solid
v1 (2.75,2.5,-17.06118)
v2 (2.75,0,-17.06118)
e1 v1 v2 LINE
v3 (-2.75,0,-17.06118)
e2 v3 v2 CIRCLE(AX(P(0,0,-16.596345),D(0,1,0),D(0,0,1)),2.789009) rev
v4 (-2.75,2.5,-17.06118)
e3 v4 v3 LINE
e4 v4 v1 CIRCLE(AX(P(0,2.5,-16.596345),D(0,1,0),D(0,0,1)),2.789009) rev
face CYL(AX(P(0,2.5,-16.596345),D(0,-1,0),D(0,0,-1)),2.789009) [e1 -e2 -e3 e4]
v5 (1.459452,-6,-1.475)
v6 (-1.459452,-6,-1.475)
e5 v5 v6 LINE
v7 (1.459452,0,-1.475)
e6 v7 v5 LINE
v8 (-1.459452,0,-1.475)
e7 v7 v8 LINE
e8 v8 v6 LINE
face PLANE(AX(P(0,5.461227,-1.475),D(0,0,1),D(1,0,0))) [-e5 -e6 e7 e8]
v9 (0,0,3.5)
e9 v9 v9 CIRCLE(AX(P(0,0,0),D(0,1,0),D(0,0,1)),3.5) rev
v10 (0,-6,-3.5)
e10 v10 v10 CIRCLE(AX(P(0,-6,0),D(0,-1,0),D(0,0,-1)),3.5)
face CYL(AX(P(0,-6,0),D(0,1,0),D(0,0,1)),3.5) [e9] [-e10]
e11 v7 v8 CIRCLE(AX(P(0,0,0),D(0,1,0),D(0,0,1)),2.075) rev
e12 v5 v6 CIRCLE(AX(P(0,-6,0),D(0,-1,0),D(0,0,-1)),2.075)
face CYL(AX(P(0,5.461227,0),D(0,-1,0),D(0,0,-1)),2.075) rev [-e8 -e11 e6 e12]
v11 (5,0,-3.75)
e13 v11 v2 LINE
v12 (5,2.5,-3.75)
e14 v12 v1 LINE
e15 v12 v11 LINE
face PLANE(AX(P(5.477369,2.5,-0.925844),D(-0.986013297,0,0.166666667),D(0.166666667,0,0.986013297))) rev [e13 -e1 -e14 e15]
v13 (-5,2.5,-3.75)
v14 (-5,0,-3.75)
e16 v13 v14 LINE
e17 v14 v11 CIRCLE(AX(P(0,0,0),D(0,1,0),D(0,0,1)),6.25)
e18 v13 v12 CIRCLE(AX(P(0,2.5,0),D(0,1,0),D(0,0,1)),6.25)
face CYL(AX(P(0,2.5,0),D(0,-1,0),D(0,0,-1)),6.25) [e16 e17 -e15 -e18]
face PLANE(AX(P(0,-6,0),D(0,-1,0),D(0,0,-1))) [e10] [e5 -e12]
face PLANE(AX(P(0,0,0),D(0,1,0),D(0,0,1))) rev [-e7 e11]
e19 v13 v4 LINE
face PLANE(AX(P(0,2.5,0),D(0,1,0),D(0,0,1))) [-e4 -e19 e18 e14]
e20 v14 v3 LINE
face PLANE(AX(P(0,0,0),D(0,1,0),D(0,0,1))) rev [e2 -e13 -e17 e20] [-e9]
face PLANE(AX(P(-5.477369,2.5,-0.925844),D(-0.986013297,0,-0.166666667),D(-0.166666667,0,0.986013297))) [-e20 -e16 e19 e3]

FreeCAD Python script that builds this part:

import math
import FreeCAD as App
import Part
import Sketcher

V = App.Vector

doc = App.newDocument("Part")
params = doc.addObject("Spreadsheet::Sheet", "Params")
for row, (alias, value) in enumerate([
    ("sketch1_radius", "6.25 mm"),
    ("sketch1_length", "13.5 mm"),
    ("pad1_length", "2.5 mm"),
    ("sketch2_diameter", "7 mm"),
    ("pad2_length", "6 mm"),
    ("pocket1_length", "6 mm"),
], start=1):
    params.set(f"A{row}", alias)
    params.set(f"B{row}", "=" + value)
    params.setAlias(f"B{row}", alias)

body = doc.addObject("PartDesign::Body", "Body")

sketch1 = body.newObject("Sketcher::SketchObject", "Sketch")
sketch1.AttachmentSupport = (doc.getObject("XZ_Plane"), [""])
sketch1.MapMode = "FlatFace"
sketch1.addGeometry([
    Part.LineSegment(V(5, -3.75, 0), V(2.75, -17.06118, 0)),
    Part.ArcOfCircle(Part.Circle(V(0, -16.596345, 0), V(0, 0, 1), 2.789009), math.radians(-170.405932), math.radians(-9.594068)),
    Part.LineSegment(V(-2.75, -17.06118, 0), V(-5, -3.75, 0)),
    Part.ArcOfCircle(Part.Circle(V(0, 0, 0), V(0, 0, 1), 6.25), math.radians(-36.869898), math.radians(216.869898)),
], False)
sketch1.addConstraint([
    Sketcher.Constraint("Tangent", 0, 2, 1, 2),
    Sketcher.Constraint("Tangent", 1, 1, 2, 1),
    Sketcher.Constraint("Coincident", 2, 2, 3, 2),
    Sketcher.Constraint("Coincident", 3, 1, 0, 1),
    Sketcher.Constraint("Coincident", 3, 3, -1, 1),
    Sketcher.Constraint("Symmetric", 0, 2, 1, 1, -2),
    Sketcher.Constraint("Radius", 3, 6.25),
    Sketcher.Constraint("DistanceX", 2, 2, -1, 1, 5.0),
    Sketcher.Constraint("Distance", 0, 13.5),
    Sketcher.Constraint("DistanceX", 1, 1, 0, 2, 5.5),
])
sketch1.setExpression("Constraints[6]", "Params.sketch1_radius")
sketch1.setExpression("Constraints[8]", "Params.sketch1_length")
pad1 = body.newObject("PartDesign::Pad", "Pad")
pad1.Profile = sketch1
pad1.setExpression("Length", "Params.pad1_length")
pad1.Reversed = True

sketch2 = body.newObject("Sketcher::SketchObject", "Sketch001")
sketch2.AttachmentSupport = (doc.getObject("XZ_Plane"), [""])
sketch2.MapMode = "FlatFace"
sketch2.addGeometry(Part.Circle(V(0, 0, 0), V(0, 0, 1), 3.5), False)
sketch2.addConstraint([
    Sketcher.Constraint("Coincident", 0, 3, -1, 1),
    Sketcher.Constraint("Diameter", 0, 7.0),
])
sketch2.setExpression("Constraints[1]", "Params.sketch2_diameter")
pad2 = body.newObject("PartDesign::Pad", "Pad001")
pad2.Profile = sketch2
pad2.setExpression("Length", "Params.pad2_length")

sketch3 = body.newObject("Sketcher::SketchObject", "Sketch002")
sketch3.AttachmentSupport = (doc.getObject("XZ_Plane"), [""])
sketch3.MapMode = "FlatFace"
sketch3.AttachmentOffset = App.Placement(V(0, 0, 6), App.Rotation())
sketch3.addGeometry([
    Part.LineSegment(V(-1.459452, -1.475, 0), V(1.459452, -1.475, 0)),
    Part.ArcOfCircle(Part.Circle(V(0, 0, 0), V(0, 0, 1), 2.075), math.radians(-45.303576), math.radians(0)),
    Part.ArcOfCircle(Part.Circle(V(0, 0, 0), V(0, 0, 1), 2.075), math.radians(0), math.radians(225.303576)),
], False)
sketch3.addConstraint([
    Sketcher.Constraint("Coincident", 0, 2, 1, 1),
    Sketcher.Constraint("Tangent", 1, 2, 2, 1),
    Sketcher.Constraint("Coincident", 2, 2, 0, 1),
    Sketcher.Constraint("Horizontal", 0),
    Sketcher.Constraint("Coincident", 1, 3, -1, 1),
    Sketcher.Constraint("Equal", 1, 2),
    Sketcher.Constraint("PointOnObject", 1, 2, -1),
    Sketcher.Constraint("Radius", 1, 2.075),
    Sketcher.Constraint("DistanceY", 0, 2, -1, 1, 1.475),
])
pocket1 = body.newObject("PartDesign::Pocket", "Pocket")
pocket1.Profile = sketch3
pocket1.setExpression("Length", "Params.pocket1_length")

doc.recompute()
